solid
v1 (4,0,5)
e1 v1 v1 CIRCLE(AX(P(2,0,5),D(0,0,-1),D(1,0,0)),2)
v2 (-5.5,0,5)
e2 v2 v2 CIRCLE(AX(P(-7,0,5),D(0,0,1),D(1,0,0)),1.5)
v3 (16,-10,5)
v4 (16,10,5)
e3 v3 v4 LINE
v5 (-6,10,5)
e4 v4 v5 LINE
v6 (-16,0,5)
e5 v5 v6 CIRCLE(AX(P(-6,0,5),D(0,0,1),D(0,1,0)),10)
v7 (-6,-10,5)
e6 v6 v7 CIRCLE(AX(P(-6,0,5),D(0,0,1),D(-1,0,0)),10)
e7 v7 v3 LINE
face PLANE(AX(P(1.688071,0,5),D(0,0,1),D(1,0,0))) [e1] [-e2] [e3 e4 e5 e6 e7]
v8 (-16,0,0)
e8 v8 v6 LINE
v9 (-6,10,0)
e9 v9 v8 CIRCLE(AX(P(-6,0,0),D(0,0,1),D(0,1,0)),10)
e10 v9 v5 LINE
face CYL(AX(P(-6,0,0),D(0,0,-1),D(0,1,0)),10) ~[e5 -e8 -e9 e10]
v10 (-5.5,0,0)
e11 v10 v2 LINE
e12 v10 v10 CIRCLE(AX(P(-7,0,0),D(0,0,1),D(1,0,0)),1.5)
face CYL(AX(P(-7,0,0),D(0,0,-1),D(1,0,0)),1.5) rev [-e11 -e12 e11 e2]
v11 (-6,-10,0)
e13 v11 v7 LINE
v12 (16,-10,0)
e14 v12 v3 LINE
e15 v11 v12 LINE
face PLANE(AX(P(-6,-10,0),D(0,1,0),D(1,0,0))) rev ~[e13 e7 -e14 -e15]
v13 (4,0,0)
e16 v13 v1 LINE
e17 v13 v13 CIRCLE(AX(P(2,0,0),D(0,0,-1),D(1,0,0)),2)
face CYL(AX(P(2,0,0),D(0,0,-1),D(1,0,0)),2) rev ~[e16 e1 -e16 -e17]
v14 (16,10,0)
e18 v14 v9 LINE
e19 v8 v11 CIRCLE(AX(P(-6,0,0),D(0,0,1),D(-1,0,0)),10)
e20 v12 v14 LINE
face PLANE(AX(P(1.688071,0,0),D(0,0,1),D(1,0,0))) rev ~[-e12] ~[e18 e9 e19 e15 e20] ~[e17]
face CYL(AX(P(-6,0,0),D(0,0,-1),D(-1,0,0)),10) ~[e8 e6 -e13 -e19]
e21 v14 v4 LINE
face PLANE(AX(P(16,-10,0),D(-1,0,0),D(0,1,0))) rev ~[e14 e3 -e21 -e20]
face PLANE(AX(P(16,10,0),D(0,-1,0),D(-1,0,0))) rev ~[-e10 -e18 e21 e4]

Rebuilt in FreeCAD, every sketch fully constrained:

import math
import FreeCAD as App
import Part
import Sketcher

V = App.Vector

doc = App.newDocument("Part")
params = doc.addObject("Spreadsheet::Sheet", "Params")
for row, (alias, value) in enumerate([
    ("sketch1_diameter", "3 mm"),
    ("sketch1_diameter2", "4 mm"),
    ("sketch1_radius", "10 mm"),
    ("sketch1_width", "22 mm"),
    ("pad1_length", "5 mm"),
], start=1):
    params.set(f"A{row}", alias)
    params.set(f"B{row}", "=" + value)
    params.setAlias(f"B{row}", alias)

body = doc.addObject("PartDesign::Body", "Body")

# Sketch on XY plane
sketch1 = body.newObject("Sketcher::SketchObject", "Sketch")
sketch1.AttachmentSupport = (doc.getObject("XY_Plane"), [""])
sketch1.MapMode = "FlatFace"
sketch1.addGeometry([
    Part.LineSegment(V(16, 10, 0), V(-6, 10, 0)),  # 0
    Part.ArcOfCircle(Part.Circle(V(-6, 0, 0), V(0, 0, 1), 10), math.radians(90), math.radians(180)),  # 1
    Part.ArcOfCircle(Part.Circle(V(-6, 0, 0), V(0, 0, 1), 10), math.radians(180), math.radians(270)),  # 2
    Part.LineSegment(V(-6, -10, 0), V(16, -10, 0)),  # 3
    Part.LineSegment(V(16, -10, 0), V(16, 10, 0)),  # 4
    Part.Circle(V(-7, 0, 0), V(0, 0, 1), 1.5),  # 5
    Part.Circle(V(2, 0, 0), V(0, 0, 1), 2),  # 6
], False)
sketch1.addConstraint([
    Sketcher.Constraint("Tangent", 0, 2, 1, 1),
    Sketcher.Constraint("Tangent", 1, 2, 2, 1),
    Sketcher.Constraint("Tangent", 2, 2, 3, 1),
    Sketcher.Constraint("Coincident", 3, 2, 4, 1),
    Sketcher.Constraint("Coincident", 4, 2, 0, 1),
    Sketcher.Constraint("Horizontal", 0),
    Sketcher.Constraint("Horizontal", 3),
    Sketcher.Constraint("Vertical", 4),
    Sketcher.Constraint("Equal", 1, 2),
    Sketcher.Constraint("PointOnObject", 1, 3, -1),
    Sketcher.Constraint("PointOnObject", 5, 3, -1),
    Sketcher.Constraint("PointOnObject", 6, 3, -1),
    Sketcher.Constraint("PointOnObject", 1, 2, -1),
    Sketcher.Constraint("Diameter", 5, 3.0),
    Sketcher.Constraint("Diameter", 6, 4.0),
    Sketcher.Constraint("Radius", 1, 10.0),
    Sketcher.Constraint("DistanceX", 0, 2, 0, 1, 22.0),
    Sketcher.Constraint("DistanceX", 1, 3, -1, 1, 6.0),
    Sketcher.Constraint("DistanceX", 5, 3, -1, 1, 7.0),
    Sketcher.Constraint("DistanceX", -1, 1, 6, 3, 2.0),
])
sketch1.setExpression("Constraints[13]", "Params.sketch1_diameter")
sketch1.setExpression("Constraints[14]", "Params.sketch1_diameter2")
sketch1.setExpression("Constraints[15]", "Params.sketch1_radius")
sketch1.setExpression("Constraints[16]", "Params.sketch1_width")
pad1 = body.newObject("PartDesign::Pad", "Pad")
pad1.Profile = sketch1
pad1.setExpression("Length", "Params.pad1_length")

doc.recompute()
